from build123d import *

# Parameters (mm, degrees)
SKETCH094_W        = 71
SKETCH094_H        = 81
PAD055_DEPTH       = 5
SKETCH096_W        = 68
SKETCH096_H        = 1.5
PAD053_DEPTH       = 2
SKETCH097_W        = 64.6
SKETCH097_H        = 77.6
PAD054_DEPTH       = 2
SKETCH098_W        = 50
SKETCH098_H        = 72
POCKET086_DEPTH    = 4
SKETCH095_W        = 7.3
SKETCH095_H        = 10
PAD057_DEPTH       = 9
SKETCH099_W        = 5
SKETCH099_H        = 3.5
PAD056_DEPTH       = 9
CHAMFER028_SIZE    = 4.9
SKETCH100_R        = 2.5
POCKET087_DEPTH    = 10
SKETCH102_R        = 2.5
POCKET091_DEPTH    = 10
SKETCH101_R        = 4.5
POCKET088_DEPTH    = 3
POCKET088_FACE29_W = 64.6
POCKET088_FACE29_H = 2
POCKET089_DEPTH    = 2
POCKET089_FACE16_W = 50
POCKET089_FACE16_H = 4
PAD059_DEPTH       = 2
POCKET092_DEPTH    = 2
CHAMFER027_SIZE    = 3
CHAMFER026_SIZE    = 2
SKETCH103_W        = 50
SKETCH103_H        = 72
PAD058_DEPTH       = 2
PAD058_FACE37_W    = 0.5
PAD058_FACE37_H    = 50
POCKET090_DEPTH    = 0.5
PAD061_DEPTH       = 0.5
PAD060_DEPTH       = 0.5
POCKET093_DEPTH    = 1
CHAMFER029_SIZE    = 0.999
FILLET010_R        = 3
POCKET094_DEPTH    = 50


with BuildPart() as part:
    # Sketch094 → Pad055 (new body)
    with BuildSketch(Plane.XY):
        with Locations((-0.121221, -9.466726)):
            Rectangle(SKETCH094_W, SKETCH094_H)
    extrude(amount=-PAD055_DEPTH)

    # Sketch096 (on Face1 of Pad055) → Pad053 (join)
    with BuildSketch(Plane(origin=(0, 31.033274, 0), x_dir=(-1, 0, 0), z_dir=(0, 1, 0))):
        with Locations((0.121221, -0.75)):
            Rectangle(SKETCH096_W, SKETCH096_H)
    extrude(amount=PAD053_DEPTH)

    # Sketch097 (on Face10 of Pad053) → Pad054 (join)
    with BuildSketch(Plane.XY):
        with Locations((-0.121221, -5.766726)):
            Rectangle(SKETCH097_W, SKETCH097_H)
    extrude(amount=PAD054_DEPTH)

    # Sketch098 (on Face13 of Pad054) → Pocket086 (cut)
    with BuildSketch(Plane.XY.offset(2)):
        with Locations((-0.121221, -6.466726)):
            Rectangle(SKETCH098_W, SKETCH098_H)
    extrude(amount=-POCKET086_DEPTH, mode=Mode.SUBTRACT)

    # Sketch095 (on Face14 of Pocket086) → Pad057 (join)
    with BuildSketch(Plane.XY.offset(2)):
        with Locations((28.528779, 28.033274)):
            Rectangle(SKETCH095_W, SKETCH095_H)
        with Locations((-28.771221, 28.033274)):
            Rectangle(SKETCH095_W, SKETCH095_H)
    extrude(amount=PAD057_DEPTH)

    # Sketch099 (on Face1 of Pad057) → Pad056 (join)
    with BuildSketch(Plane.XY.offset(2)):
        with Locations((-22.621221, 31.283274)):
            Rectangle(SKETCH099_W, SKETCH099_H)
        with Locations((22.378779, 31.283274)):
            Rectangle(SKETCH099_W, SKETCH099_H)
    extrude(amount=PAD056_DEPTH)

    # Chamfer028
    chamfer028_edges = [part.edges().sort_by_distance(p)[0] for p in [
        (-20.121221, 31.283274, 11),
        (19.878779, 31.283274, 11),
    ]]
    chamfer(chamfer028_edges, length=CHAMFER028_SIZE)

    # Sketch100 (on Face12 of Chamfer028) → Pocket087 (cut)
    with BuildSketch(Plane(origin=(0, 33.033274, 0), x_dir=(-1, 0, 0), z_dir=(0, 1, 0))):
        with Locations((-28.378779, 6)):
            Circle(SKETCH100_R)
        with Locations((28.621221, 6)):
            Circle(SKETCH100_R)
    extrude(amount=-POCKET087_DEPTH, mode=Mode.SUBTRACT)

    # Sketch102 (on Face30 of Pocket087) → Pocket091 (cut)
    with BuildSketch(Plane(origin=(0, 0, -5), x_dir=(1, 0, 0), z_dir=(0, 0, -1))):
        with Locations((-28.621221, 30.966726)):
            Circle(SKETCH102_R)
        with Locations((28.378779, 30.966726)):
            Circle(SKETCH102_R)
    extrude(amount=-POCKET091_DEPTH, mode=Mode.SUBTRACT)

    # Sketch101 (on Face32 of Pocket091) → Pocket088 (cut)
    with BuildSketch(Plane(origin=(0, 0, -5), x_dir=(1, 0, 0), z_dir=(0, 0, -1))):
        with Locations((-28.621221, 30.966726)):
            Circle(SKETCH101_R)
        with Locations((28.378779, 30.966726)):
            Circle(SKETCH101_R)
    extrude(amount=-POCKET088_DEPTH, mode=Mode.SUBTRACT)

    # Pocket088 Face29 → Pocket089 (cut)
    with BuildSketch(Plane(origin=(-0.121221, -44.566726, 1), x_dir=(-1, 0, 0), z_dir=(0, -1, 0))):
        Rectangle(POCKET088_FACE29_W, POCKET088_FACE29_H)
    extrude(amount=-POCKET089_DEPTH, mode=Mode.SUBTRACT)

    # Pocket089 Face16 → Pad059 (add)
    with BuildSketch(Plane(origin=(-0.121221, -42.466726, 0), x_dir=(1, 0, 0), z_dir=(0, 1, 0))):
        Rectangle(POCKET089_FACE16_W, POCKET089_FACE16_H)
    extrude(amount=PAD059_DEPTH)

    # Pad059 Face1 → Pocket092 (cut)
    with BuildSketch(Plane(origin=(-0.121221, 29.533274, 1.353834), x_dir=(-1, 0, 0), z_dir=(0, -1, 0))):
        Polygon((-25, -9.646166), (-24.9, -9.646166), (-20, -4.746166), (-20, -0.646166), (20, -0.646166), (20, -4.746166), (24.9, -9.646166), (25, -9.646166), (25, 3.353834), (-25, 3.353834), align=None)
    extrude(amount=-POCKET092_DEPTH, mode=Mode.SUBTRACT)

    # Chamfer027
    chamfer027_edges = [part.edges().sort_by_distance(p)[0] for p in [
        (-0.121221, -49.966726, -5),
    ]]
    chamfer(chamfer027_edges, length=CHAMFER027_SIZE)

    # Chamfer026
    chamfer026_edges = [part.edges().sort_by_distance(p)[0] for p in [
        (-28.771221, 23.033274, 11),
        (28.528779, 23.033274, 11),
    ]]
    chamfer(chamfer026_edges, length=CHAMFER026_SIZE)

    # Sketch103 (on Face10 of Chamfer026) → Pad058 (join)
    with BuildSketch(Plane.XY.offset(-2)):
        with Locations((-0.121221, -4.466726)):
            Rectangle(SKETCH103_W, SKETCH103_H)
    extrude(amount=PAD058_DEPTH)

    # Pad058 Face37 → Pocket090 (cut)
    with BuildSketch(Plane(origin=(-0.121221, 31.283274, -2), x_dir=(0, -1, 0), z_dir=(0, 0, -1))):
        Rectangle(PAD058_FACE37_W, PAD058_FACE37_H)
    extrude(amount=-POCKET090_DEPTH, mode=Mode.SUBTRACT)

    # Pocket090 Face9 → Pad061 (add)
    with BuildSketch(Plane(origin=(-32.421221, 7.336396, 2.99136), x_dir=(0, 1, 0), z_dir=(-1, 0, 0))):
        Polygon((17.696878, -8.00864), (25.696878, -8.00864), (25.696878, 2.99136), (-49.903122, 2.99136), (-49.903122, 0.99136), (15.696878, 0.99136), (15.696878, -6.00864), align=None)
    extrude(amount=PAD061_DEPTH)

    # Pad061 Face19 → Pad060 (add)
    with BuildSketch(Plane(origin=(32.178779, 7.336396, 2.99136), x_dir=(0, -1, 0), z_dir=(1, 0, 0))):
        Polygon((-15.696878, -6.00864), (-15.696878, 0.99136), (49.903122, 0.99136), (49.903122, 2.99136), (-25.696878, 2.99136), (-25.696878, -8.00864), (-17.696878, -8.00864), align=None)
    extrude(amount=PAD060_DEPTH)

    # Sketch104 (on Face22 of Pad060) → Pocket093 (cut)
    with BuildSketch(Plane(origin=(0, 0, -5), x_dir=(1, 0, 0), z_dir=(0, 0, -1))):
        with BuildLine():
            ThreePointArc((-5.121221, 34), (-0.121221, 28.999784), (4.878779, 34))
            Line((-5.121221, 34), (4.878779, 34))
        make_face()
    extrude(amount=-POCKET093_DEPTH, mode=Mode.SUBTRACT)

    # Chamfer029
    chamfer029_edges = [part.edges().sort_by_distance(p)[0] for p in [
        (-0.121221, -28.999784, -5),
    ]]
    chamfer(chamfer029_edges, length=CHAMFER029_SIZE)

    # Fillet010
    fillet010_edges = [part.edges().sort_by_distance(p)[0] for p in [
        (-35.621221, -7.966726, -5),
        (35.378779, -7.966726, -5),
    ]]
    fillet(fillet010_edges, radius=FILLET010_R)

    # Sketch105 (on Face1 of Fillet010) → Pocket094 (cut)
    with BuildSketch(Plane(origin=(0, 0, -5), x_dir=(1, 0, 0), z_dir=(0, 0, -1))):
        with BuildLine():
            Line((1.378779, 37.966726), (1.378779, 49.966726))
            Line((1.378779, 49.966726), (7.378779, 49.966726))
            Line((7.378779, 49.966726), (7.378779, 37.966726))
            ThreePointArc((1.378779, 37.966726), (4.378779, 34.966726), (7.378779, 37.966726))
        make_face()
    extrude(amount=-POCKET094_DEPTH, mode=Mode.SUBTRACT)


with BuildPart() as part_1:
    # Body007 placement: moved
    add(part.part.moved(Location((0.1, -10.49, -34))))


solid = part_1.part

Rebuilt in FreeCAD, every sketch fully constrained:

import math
import FreeCAD as App
import Part
import Sketcher
from FreeCAD import Vector
Q = App.Units.Quantity


def edges_at(feature, points):
    """Names of the edges that pass closest to the given points."""
    edges = feature.Shape.Edges
    near = lambda p: min(range(len(edges)), key=lambda i: edges[i].distToShape(Part.Vertex(*p))[0])
    return sorted({f"Edge{near(p) + 1}" for p in points})

doc = App.newDocument("Part")
body = doc.addObject("PartDesign::Body", "Body")

# Sketch on XY plane
sketch1 = body.newObject("Sketcher::SketchObject", "Sketch")
sketch1.AttachmentSupport = (doc.getObject("XY_Plane"), [""])
sketch1.MapMode = "FlatFace"
sketch1.addGeometry([
    Part.LineSegment(Vector(-36, 31, 0), Vector(-36, -50, 0)),
    Part.LineSegment(Vector(-36, -50, 0), Vector(35, -50, 0)),
    Part.LineSegment(Vector(35, -50, 0), Vector(35, 31, 0)),
    Part.LineSegment(Vector(35, 31, 0), Vector(-36, 31, 0)),
], False)
sketch1.addConstraint([
    Sketcher.Constraint("Coincident", 0, 2, 1, 1),
    Sketcher.Constraint("Coincident", 1, 2, 2, 1),
    Sketcher.Constraint("Coincident", 2, 2, 3, 1),
    Sketcher.Constraint("Coincident", 3, 2, 0, 1),
    Sketcher.Constraint("Vertical", 0),
    Sketcher.Constraint("Horizontal", 1),
    Sketcher.Constraint("Vertical", 2),
    Sketcher.Constraint("Horizontal", 3),
    Sketcher.Constraint("DistanceX", 1, 1, 1, 2, Q("71 mm")),
    Sketcher.Constraint("DistanceY", 0, 2, 0, 1, Q("81 mm")),
    Sketcher.Constraint("DistanceX", 0, 2, -1, 1, Q("35.621221 mm")),
    Sketcher.Constraint("DistanceY", 0, 2, -1, 1, Q("49.966726 mm")),
])
pad1 = body.newObject("PartDesign::Pad", "Pad")
pad1.Profile = sketch1
pad1.Length = 5
pad1.Reversed = True

# Sketch on XZ plane
sketch2 = body.newObject("Sketcher::SketchObject", "Sketch001")
sketch2.AttachmentSupport = (doc.getObject("XZ_Plane"), [""])
sketch2.MapMode = "FlatFace"
sketch2.AttachmentOffset = App.Placement(Vector(0, 0, -31.033274), App.Rotation())
sketch2.addGeometry([
    Part.LineSegment(Vector(33.9, 0, 0), Vector(33.9, -1.5, 0)),
    Part.LineSegment(Vector(33.9, -1.5, 0), Vector(-34.1, -1.5, 0)),
    Part.LineSegment(Vector(-34.1, -1.5, 0), Vector(-34.1, 0, 0)),
    Part.LineSegment(Vector(-34.1, 0, 0), Vector(33.9, 0, 0)),
], False)
sketch2.addConstraint([
    Sketcher.Constraint("Coincident", 0, 2, 1, 1),
    Sketcher.Constraint("Coincident", 1, 2, 2, 1),
    Sketcher.Constraint("Coincident", 2, 2, 3, 1),
    Sketcher.Constraint("Coincident", 3, 2, 0, 1),
    Sketcher.Constraint("Vertical", 0),
    Sketcher.Constraint("Horizontal", 1),
    Sketcher.Constraint("Vertical", 2),
    Sketcher.Constraint("Horizontal", 3),
    Sketcher.Constraint("PointOnObject", 2, 2, -1),
    Sketcher.Constraint("DistanceX", 1, 2, 1, 1, Q("68 mm")),
    Sketcher.Constraint("DistanceY", 0, 2, 0, 1, Q("1.5 mm")),
    Sketcher.Constraint("DistanceX", -1, 1, 0, 2, Q("33.878779 mm")),
])
pad2 = body.newObject("PartDesign::Pad", "Pad001")
pad2.Profile = sketch2
pad2.Length = 2
pad2.Reversed = True

# Sketch on XY plane
sketch3 = body.newObject("Sketcher::SketchObject", "Sketch002")
sketch3.AttachmentSupport = (doc.getObject("XY_Plane"), [""])
sketch3.MapMode = "FlatFace"
sketch3.addGeometry([
    Part.LineSegment(Vector(-32, 33, 0), Vector(-32, -45, 0)),
    Part.LineSegment(Vector(-32, -45, 0), Vector(32, -45, 0)),
    Part.LineSegment(Vector(32, -45, 0), Vector(32, 33, 0)),
    Part.LineSegment(Vector(32, 33, 0), Vector(-32, 33, 0)),
], False)
sketch3.addConstraint([
    Sketcher.Constraint("Coincident", 0, 2, 1, 1),
    Sketcher.Constraint("Coincident", 1, 2, 2, 1),
    Sketcher.Constraint("Coincident", 2, 2, 3, 1),
    Sketcher.Constraint("Coincident", 3, 2, 0, 1),
    Sketcher.Constraint("Vertical", 0),
    Sketcher.Constraint("Horizontal", 1),
    Sketcher.Constraint("Vertical", 2),
    Sketcher.Constraint("Horizontal", 3),
    Sketcher.Constraint("DistanceX", 1, 1, 1, 2, Q("64.6 mm")),
    Sketcher.Constraint("DistanceY", 0, 2, 0, 1, Q("77.6 mm")),
    Sketcher.Constraint("DistanceX", 0, 2, -1, 1, Q("32.421221 mm")),
    Sketcher.Constraint("DistanceY", 0, 2, -1, 1, Q("44.566726 mm")),
])
pad3 = body.newObject("PartDesign::Pad", "Pad002")
pad3.Profile = sketch3
pad3.Length = 2

# Sketch on XY plane
sketch4 = body.newObject("Sketcher::SketchObject", "Sketch003")
sketch4.AttachmentSupport = (doc.getObject("XY_Plane"), [""])
sketch4.MapMode = "FlatFace"
sketch4.AttachmentOffset = App.Placement(Vector(0, 0, 2), App.Rotation())
sketch4.addGeometry([
    Part.LineSegment(Vector(-25, 30, 0), Vector(-25, -42, 0)),
    Part.LineSegment(Vector(-25, -42, 0), Vector(25, -42, 0)),
    Part.LineSegment(Vector(25, -42, 0), Vector(25, 30, 0)),
    Part.LineSegment(Vector(25, 30, 0), Vector(-25, 30, 0)),
], False)
sketch4.addConstraint([
    Sketcher.Constraint("Coincident", 0, 2, 1, 1),
    Sketcher.Constraint("Coincident", 1, 2, 2, 1),
    Sketcher.Constraint("Coincident", 2, 2, 3, 1),
    Sketcher.Constraint("Coincident", 3, 2, 0, 1),
    Sketcher.Constraint("Vertical", 0),
    Sketcher.Constraint("Horizontal", 1),
    Sketcher.Constraint("Vertical", 2),
    Sketcher.Constraint("Horizontal", 3),
    Sketcher.Constraint("DistanceX", 1, 1, 1, 2, Q("50 mm")),
    Sketcher.Constraint("DistanceY", 0, 2, 0, 1, Q("72 mm")),
    Sketcher.Constraint("DistanceX", 0, 2, -1, 1, Q("25.121221 mm")),
    Sketcher.Constraint("DistanceY", 0, 2, -1, 1, Q("42.466726 mm")),
])
pocket1 = body.newObject("PartDesign::Pocket", "Pocket")
pocket1.Profile = sketch4
pocket1.Length = 4

# Sketch on XY plane
sketch5 = body.newObject("Sketcher::SketchObject", "Sketch004")
sketch5.AttachmentSupport = (doc.getObject("XY_Plane"), [""])
sketch5.MapMode = "FlatFace"
sketch5.AttachmentOffset = App.Placement(Vector(0, 0, 2), App.Rotation())
sketch5.addGeometry([
    Part.LineSegment(Vector(25, 33, 0), Vector(25, 23, 0)),  # 0
    Part.LineSegment(Vector(25, 23, 0), Vector(32, 23, 0)),  # 1
    Part.LineSegment(Vector(32, 23, 0), Vector(32, 33, 0)),  # 2
    Part.LineSegment(Vector(32, 33, 0), Vector(25, 33, 0)),  # 3
    Part.LineSegment(Vector(-32, 33, 0), Vector(-32, 23, 0)),  # 4
    Part.LineSegment(Vector(-32, 23, 0), Vector(-25, 23, 0)),  # 5
    Part.LineSegment(Vector(-25, 23, 0), Vector(-25, 33, 0)),  # 6
    Part.LineSegment(Vector(-25, 33, 0), Vector(-32, 33, 0)),  # 7
], False)
sketch5.addConstraint([
    Sketcher.Constraint("Coincident", 0, 2, 1, 1),
    Sketcher.Constraint("Coincident", 1, 2, 2, 1),
    Sketcher.Constraint("Coincident", 2, 2, 3, 1),
    Sketcher.Constraint("Coincident", 3, 2, 0, 1),
    Sketcher.Constraint("Coincident", 4, 2, 5, 1),
    Sketcher.Constraint("Coincident", 5, 2, 6, 1),
    Sketcher.Constraint("Coincident", 6, 2, 7, 1),
    Sketcher.Constraint("Coincident", 7, 2, 4, 1),
    Sketcher.Constraint("Vertical", 0),
    Sketcher.Constraint("Horizontal", 1),
    Sketcher.Constraint("Vertical", 2),
    Sketcher.Constraint("Horizontal", 3),
    Sketcher.Constraint("Vertical", 4),
    Sketcher.Constraint("Horizontal", 5),
    Sketcher.Constraint("Vertical", 6),
    Sketcher.Constraint("Horizontal", 7),
    Sketcher.Constraint("Horizontal", 1, 2, 4, 2),
    Sketcher.Constraint("Horizontal", 3, 2, 6, 2),
    Sketcher.Constraint("Equal", 3, 5),
    Sketcher.Constraint("DistanceY", 0, 2, 0, 1, Q("10 mm")),
    Sketcher.Constraint("DistanceX", 1, 1, 1, 2, Q("7.3 mm")),
    Sketcher.Constraint("DistanceX", 5, 2, 0, 2, Q("50 mm")),
    Sketcher.Constraint("DistanceX", -1, 1, 0, 2, Q("24.878779 mm")),
    Sketcher.Constraint("DistanceY", -1, 1, 0, 2, Q("23.033274 mm")),
])
pad4 = body.newObject("PartDesign::Pad", "Pad003")
pad4.Profile = sketch5
pad4.Length = 9

# Sketch on XY plane
sketch6 = body.newObject("Sketcher::SketchObject", "Sketch005")
sketch6.AttachmentSupport = (doc.getObject("XY_Plane"), [""])
sketch6.MapMode = "FlatFace"
sketch6.AttachmentOffset = App.Placement(Vector(0, 0, 2), App.Rotation())
sketch6.addGeometry([
    Part.LineSegment(Vector(-25.1, 33, 0), Vector(-25.1, 29.5, 0)),  # 0
    Part.LineSegment(Vector(-25.1, 29.5, 0), Vector(-20.1, 29.5, 0)),  # 1
    Part.LineSegment(Vector(-20.1, 29.5, 0), Vector(-20.1, 33, 0)),  # 2
    Part.LineSegment(Vector(-20.1, 33, 0), Vector(-25.1, 33, 0)),  # 3
    Part.LineSegment(Vector(19.9, 33, 0), Vector(19.9, 29.5, 0)),  # 4
    Part.LineSegment(Vector(19.9, 29.5, 0), Vector(24.9, 29.5, 0)),  # 5
    Part.LineSegment(Vector(24.9, 29.5, 0), Vector(24.9, 33, 0)),  # 6
    Part.LineSegment(Vector(24.9, 33, 0), Vector(19.9, 33, 0)),  # 7
], False)
sketch6.addConstraint([
    Sketcher.Constraint("Coincident", 0, 2, 1, 1),
    Sketcher.Constraint("Coincident", 1, 2, 2, 1),
    Sketcher.Constraint("Coincident", 2, 2, 3, 1),
    Sketcher.Constraint("Coincident", 3, 2, 0, 1),
    Sketcher.Constraint("Coincident", 4, 2, 5, 1),
    Sketcher.Constraint("Coincident", 5, 2, 6, 1),
    Sketcher.Constraint("Coincident", 6, 2, 7, 1),
    Sketcher.Constraint("Coincident", 7, 2, 4, 1),
    Sketcher.Constraint("Vertical", 0),
    Sketcher.Constraint("Horizontal", 1),
    Sketcher.Constraint("Vertical", 2),
    Sketcher.Constraint("Horizontal", 3),
    Sketcher.Constraint("Vertical", 4),
    Sketcher.Constraint("Horizontal", 5),
    Sketcher.Constraint("Vertical", 6),
    Sketcher.Constraint("Horizontal", 7),
    Sketcher.Constraint("Horizontal", 1, 2, 4, 2),
    Sketcher.Constraint("Horizontal", 3, 2, 6, 2),
    Sketcher.Constraint("Equal", 3, 5),
    Sketcher.Constraint("DistanceX", 1, 1, 1, 2, Q("5 mm")),
    Sketcher.Constraint("DistanceY", 0, 2, 0, 1, Q("3.5 mm")),
    Sketcher.Constraint("DistanceX", 1, 2, 4, 2, Q("40 mm")),
    Sketcher.Constraint("DistanceX", 0, 2, -1, 1, Q("25.121221 mm")),
    Sketcher.Constraint("DistanceY", -1, 1, 0, 2, Q("29.533274 mm")),
])
pad5 = body.newObject("PartDesign::Pad", "Pad004")
pad5.Profile = sketch6
pad5.Length = 9
doc.recompute()

chamfer = body.newObject("PartDesign::Chamfer", "Chamfer")
chamfer.Base = (pad5, edges_at(pad5, [(-20.121, 31.283, 11), (19.879, 31.283, 11)]))
chamfer.Size = 4.9

# Sketch on XZ plane
sketch7 = body.newObject("Sketcher::SketchObject", "Sketch006")
sketch7.AttachmentSupport = (doc.getObject("XZ_Plane"), [""])
sketch7.MapMode = "FlatFace"
sketch7.AttachmentOffset = App.Placement(Vector(0, 0, -33.033274), App.Rotation())
sketch7.addGeometry([
    Part.Circle(Vector(28.4, 6, 0), Vector(0, 0, 1), 2.5),
    Part.Circle(Vector(-28.6, 6, 0), Vector(0, 0, 1), 2.5),
], False)
sketch7.addConstraint([
    Sketcher.Constraint("Equal", 0, 1),
    Sketcher.Constraint("Horizontal", 0, 3, 1, 3),
    Sketcher.Constraint("Diameter", 0, Q("5 mm")),
    Sketcher.Constraint("DistanceY", -1, 1, 0, 3, Q("6 mm")),
    Sketcher.Constraint("DistanceX", 1, 3, 0, 3, Q("57 mm")),
    Sketcher.Constraint("DistanceX", -1, 1, 0, 3, Q("28.378779 mm")),
])
pocket2 = body.newObject("PartDesign::Pocket", "Pocket001")
pocket2.Profile = sketch7
pocket2.Length = 10
pocket2.Reversed = True

# Sketch on XY plane
sketch8 = body.newObject("Sketcher::SketchObject", "Sketch007")
sketch8.AttachmentSupport = (doc.getObject("XY_Plane"), [""])
sketch8.MapMode = "FlatFace"
sketch8.AttachmentOffset = App.Placement(Vector(0, 0, -5), App.Rotation())
sketch8.addGeometry([
    Part.Circle(Vector(-28.6, -31, 0), Vector(0, 0, 1), 2.5),
    Part.Circle(Vector(28.4, -31, 0), Vector(0, 0, 1), 2.5),
], False)
sketch8.addConstraint([
    Sketcher.Constraint("Equal", 0, 1),
    Sketcher.Constraint("Horizontal", 0, 3, 1, 3),
    Sketcher.Constraint("Diameter", 0, Q("5 mm")),
    Sketcher.Constraint("DistanceX", 0, 3, 1, 3, Q("57 mm")),
    Sketcher.Constraint("DistanceX", 0, 3, -1, 1, Q("28.621221 mm")),
    Sketcher.Constraint("DistanceY", 0, 3, -1, 1, Q("30.966726 mm")),
])
pocket3 = body.newObject("PartDesign::Pocket", "Pocket002")
pocket3.Profile = sketch8
pocket3.Length = 10
pocket3.Reversed = True

# Sketch on XY plane
sketch9 = body.newObject("Sketcher::SketchObject", "Sketch008")
sketch9.AttachmentSupport = (doc.getObject("XY_Plane"), [""])
sketch9.MapMode = "FlatFace"
sketch9.AttachmentOffset = App.Placement(Vector(0, 0, -5), App.Rotation())
sketch9.addGeometry([
    Part.Circle(Vector(-28.6, -31, 0), Vector(0, 0, 1), 4.5),
    Part.Circle(Vector(28.4, -31, 0), Vector(0, 0, 1), 4.5),
], False)
sketch9.addConstraint([
    Sketcher.Constraint("Equal", 0, 1),
    Sketcher.Constraint("Horizontal", 0, 3, 1, 3),
    Sketcher.Constraint("Diameter", 0, Q("9 mm")),
    Sketcher.Constraint("DistanceX", 0, 3, 1, 3, Q("57 mm")),
    Sketcher.Constraint("DistanceX", 0, 3, -1, 1, Q("28.621221 mm")),
    Sketcher.Constraint("DistanceY", 0, 3, -1, 1, Q("30.966726 mm")),
])
pocket4 = body.newObject("PartDesign::Pocket", "Pocket003")
pocket4.Profile = sketch9
pocket4.Length = 3
pocket4.Reversed = True

# Sketch on XZ plane
sketch10 = body.newObject("Sketcher::SketchObject", "Sketch009")
sketch10.AttachmentSupport = (doc.getObject("XZ_Plane"), [""])
sketch10.MapMode = "FlatFace"
sketch10.AttachmentOffset = App.Placement(Vector(0, 0, 44.566726), App.Rotation())
sketch10.addGeometry([
    Part.LineSegment(Vector(32.2, 0, 0), Vector(32.2, 2, 0)),
    Part.LineSegment(Vector(32.2, 2, 0), Vector(-32.4, 2, 0)),
    Part.LineSegment(Vector(-32.4, 2, 0), Vector(-32.4, 0, 0)),
    Part.LineSegment(Vector(-32.4, 0, 0), Vector(32.2, 0, 0)),
], False)
sketch10.addConstraint([
    Sketcher.Constraint("Coincident", 0, 2, 1, 1),
    Sketcher.Constraint("Coincident", 1, 2, 2, 1),
    Sketcher.Constraint("Coincident", 2, 2, 3, 1),
    Sketcher.Constraint("Coincident", 3, 2, 0, 1),
    Sketcher.Constraint("Vertical", 0),
    Sketcher.Constraint("Horizontal", 1),
    Sketcher.Constraint("Vertical", 2),
    Sketcher.Constraint("Horizontal", 3),
    Sketcher.Constraint("PointOnObject", 2, 2, -1),
    Sketcher.Constraint("DistanceY", 0, 1, 0, 2, Q("2 mm")),
    Sketcher.Constraint("DistanceX", 1, 2, 1, 1, Q("64.6 mm")),
    Sketcher.Constraint("DistanceX", -1, 1, 0, 2, Q("32.178779 mm")),
])
pocket5 = body.newObject("PartDesign::Pocket", "Pocket004")
pocket5.Profile = sketch10
pocket5.Length = 2

# Sketch on XZ plane
sketch11 = body.newObject("Sketcher::SketchObject", "Sketch010")
sketch11.AttachmentSupport = (doc.getObject("XZ_Plane"), [""])
sketch11.MapMode = "FlatFace"
sketch11.AttachmentOffset = App.Placement(Vector(0, 0, 42.466726), App.Rotation())
sketch11.addGeometry([
    Part.LineSegment(Vector(-25.1, -2, 0), Vector(-25.1, 2, 0)),
    Part.LineSegment(Vector(-25.1, 2, 0), Vector(24.9, 2, 0)),
    Part.LineSegment(Vector(24.9, 2, 0), Vector(24.9, -2, 0)),
    Part.LineSegment(Vector(24.9, -2, 0), Vector(-25.1, -2, 0)),
], False)
sketch11.addConstraint([
    Sketcher.Constraint("Coincident", 0, 2, 1, 1),
    Sketcher.Constraint("Coincident", 1, 2, 2, 1),
    Sketcher.Constraint("Coincident", 2, 2, 3, 1),
    Sketcher.Constraint("Coincident", 3, 2, 0, 1),
    Sketcher.Constraint("Vertical", 0),
    Sketcher.Constraint("Horizontal", 1),
    Sketcher.Constraint("Vertical", 2),
    Sketcher.Constraint("Horizontal", 3),
    Sketcher.Constraint("DistanceX", 1, 1, 1, 2, Q("50 mm")),
    Sketcher.Constraint("DistanceY", 0, 1, 0, 2, Q("4 mm")),
    Sketcher.Constraint("DistanceY", -1, 1, 0, 2, Q("2 mm")),
    Sketcher.Constraint("DistanceX", 0, 2, -1, 1, Q("25.121221 mm")),
])
pad6 = body.newObject("PartDesign::Pad", "Pad005")
pad6.Profile = sketch11
pad6.Length = 2
pad6.Reversed = True

# Sketch on XZ plane
sketch12 = body.newObject("Sketcher::SketchObject", "Sketch011")
sketch12.AttachmentSupport = (doc.getObject("XZ_Plane"), [""])
sketch12.MapMode = "FlatFace"
sketch12.AttachmentOffset = App.Placement(Vector(0, 0, -29.533274), App.Rotation())
sketch12.addGeometry([
    Part.LineSegment(Vector(24.88, 11, 0), Vector(24.78, 11, 0)),  # 0
    Part.LineSegment(Vector(24.78, 11, 0), Vector(19.88, 6.1, 0)),  # 1
    Part.LineSegment(Vector(19.88, 6.1, 0), Vector(19.88, 2, 0)),  # 2
    Part.LineSegment(Vector(19.88, 2, 0), Vector(-20.12, 2, 0)),  # 3
    Part.LineSegment(Vector(-20.12, 2, 0), Vector(-20.12, 6.1, 0)),  # 4
    Part.LineSegment(Vector(-20.12, 6.1, 0), Vector(-25.02, 11, 0)),  # 5
    Part.LineSegment(Vector(-25.02, 11, 0), Vector(-25.12, 11, 0)),  # 6
    Part.LineSegment(Vector(-25.12, 11, 0), Vector(-25.12, -2, 0)),  # 7
    Part.LineSegment(Vector(-25.12, -2, 0), Vector(24.88, -2, 0)),  # 8
    Part.LineSegment(Vector(24.88, -2, 0), Vector(24.88, 11, 0)),  # 9
], False)
sketch12.addConstraint([
    Sketcher.Constraint("Coincident", 0, 2, 1, 1),
    Sketcher.Constraint("Coincident", 1, 2, 2, 1),
    Sketcher.Constraint("Coincident", 2, 2, 3, 1),
    Sketcher.Constraint("Coincident", 3, 2, 4, 1),
    Sketcher.Constraint("Coincident", 4, 2, 5, 1),
    Sketcher.Constraint("Coincident", 5, 2, 6, 1),
    Sketcher.Constraint("Coincident", 6, 2, 7, 1),
    Sketcher.Constraint("Coincident", 7, 2, 8, 1),
    Sketcher.Constraint("Coincident", 8, 2, 9, 1),
    Sketcher.Constraint("Coincident", 9, 2, 0, 1),
    Sketcher.Constraint("Horizontal", 0),
    Sketcher.Constraint("Vertical", 2),
    Sketcher.Constraint("Horizontal", 3),
    Sketcher.Constraint("Vertical", 4),
    Sketcher.Constraint("Horizontal", 6),
    Sketcher.Constraint("Vertical", 7),
    Sketcher.Constraint("Horizontal", 8),
    Sketcher.Constraint("Vertical", 9),
    Sketcher.Constraint("Perpendicular", 1, 5),
    Sketcher.Constraint("Horizontal", 1, 2, 4, 2),
    Sketcher.Constraint("Horizontal", 0, 2, 5, 2),
    Sketcher.Constraint("Equal", 0, 6),
    Sketcher.Constraint("Equal", 1, 5),
    Sketcher.Constraint("DistanceX", 3, 2, 3, 1, Q("40 mm")),
    Sketcher.Constraint("DistanceX", 8, 1, 8, 2, Q("50 mm")),
    Sketcher.Constraint("DistanceY", 7, 2, 7, 1, Q("13 mm")),
    Sketcher.Constraint("DistanceX", 0, 2, 0, 1, Q("0.1 mm")),
    Sketcher.Constraint("DistanceY", 2, 2, 2, 1, Q("4.1 mm")),
    Sketcher.Constraint("DistanceY", -1, 1, 0, 2, Q("11 mm")),
    Sketcher.Constraint("DistanceX", -1, 1, 0, 2, Q("24.778779 mm")),
])
pocket6 = body.newObject("PartDesign::Pocket", "Pocket005")
pocket6.Profile = sketch12
pocket6.Length = 2
doc.recompute()

chamfer2 = body.newObject("PartDesign::Chamfer", "Chamfer001")
chamfer2.Base = (pocket6, edges_at(pocket6, [(-0.121, -49.967, -5)]))
chamfer2.Size = 3
doc.recompute()

chamfer3 = body.newObject("PartDesign::Chamfer", "Chamfer002")
chamfer3.Base = (chamfer2, edges_at(chamfer2, [(-28.771, 23.033, 11), (28.529, 23.033, 11)]))
chamfer3.Size = 2

# Sketch on XY plane
sketch13 = body.newObject("Sketcher::SketchObject", "Sketch012")
sketch13.AttachmentSupport = (doc.getObject("XY_Plane"), [""])
sketch13.MapMode = "FlatFace"
sketch13.AttachmentOffset = App.Placement(Vector(0, 0, -2), App.Rotation())
sketch13.addGeometry([
    Part.LineSegment(Vector(-25, 32, 0), Vector(-25, -40, 0)),
    Part.LineSegment(Vector(-25, -40, 0), Vector(25, -40, 0)),
    Part.LineSegment(Vector(25, -40, 0), Vector(25, 32, 0)),
    Part.LineSegment(Vector(25, 32, 0), Vector(-25, 32, 0)),
], False)
sketch13.addConstraint([
    Sketcher.Constraint("Coincident", 0, 2, 1, 1),
    Sketcher.Constraint("Coincident", 1, 2, 2, 1),
    Sketcher.Constraint("Coincident", 2, 2, 3, 1),
    Sketcher.Constraint("Coincident", 3, 2, 0, 1),
    Sketcher.Constraint("Vertical", 0),
    Sketcher.Constraint("Horizontal", 1),
    Sketcher.Constraint("Vertical", 2),
    Sketcher.Constraint("Horizontal", 3),
    Sketcher.Constraint("DistanceX", 1, 1, 1, 2, Q("50 mm")),
    Sketcher.Constraint("DistanceY", 0, 2, 0, 1, Q("72 mm")),
    Sketcher.Constraint("DistanceX", 0, 2, -1, 1, Q("25.121221 mm")),
    Sketcher.Constraint("DistanceY", 0, 2, -1, 1, Q("40.466726 mm")),
])
pad7 = body.newObject("PartDesign::Pad", "Pad006")
pad7.Profile = sketch13
pad7.Length = 2

# Sketch on XY plane
sketch14 = body.newObject("Sketcher::SketchObject", "Sketch013")
sketch14.AttachmentSupport = (doc.getObject("XY_Plane"), [""])
sketch14.MapMode = "FlatFace"
sketch14.AttachmentOffset = App.Placement(Vector(0, 0, -2), App.Rotation())
sketch14.addGeometry([
    Part.LineSegment(Vector(-25.1, 31.5, 0), Vector(24.9, 31.5, 0)),
    Part.LineSegment(Vector(24.9, 31.5, 0), Vector(24.9, 31, 0)),
    Part.LineSegment(Vector(24.9, 31, 0), Vector(-25.1, 31, 0)),
    Part.LineSegment(Vector(-25.1, 31, 0), Vector(-25.1, 31.5, 0)),
], False)
sketch14.addConstraint([
    Sketcher.Constraint("Coincident", 0, 2, 1, 1),
    Sketcher.Constraint("Coincident", 1, 2, 2, 1),
    Sketcher.Constraint("Coincident", 2, 2, 3, 1),
    Sketcher.Constraint("Coincident", 3, 2, 0, 1),
    Sketcher.Constraint("Horizontal", 0),
    Sketcher.Constraint("Vertical", 1),
    Sketcher.Constraint("Horizontal", 2),
    Sketcher.Constraint("Vertical", 3),
    Sketcher.Constraint("DistanceX", 0, 1, 0, 2, Q("50 mm")),
    Sketcher.Constraint("DistanceY", 1, 2, 1, 1, Q("0.5 mm")),
    Sketcher.Constraint("DistanceX", -1, 1, 0, 2, Q("24.878779 mm")),
    Sketcher.Constraint("DistanceY", -1, 1, 0, 2, Q("31.533274 mm")),
])
pocket7 = body.newObject("PartDesign::Pocket", "Pocket006")
pocket7.Profile = sketch14
pocket7.Length = 0.5
pocket7.Reversed = True

# Sketch on YZ plane
sketch15 = body.newObject("Sketcher::SketchObject", "Sketch014")
sketch15.AttachmentSupport = (doc.getObject("YZ_Plane"), [""])
sketch15.MapMode = "FlatFace"
sketch15.AttachmentOffset = App.Placement(Vector(0, 0, -32.421221), App.Rotation())
sketch15.addGeometry([
    Part.LineSegment(Vector(25, 11, 0), Vector(33, 11, 0)),  # 0
    Part.LineSegment(Vector(33, 11, 0), Vector(33, 0, 0)),  # 1
    Part.LineSegment(Vector(33, 0, 0), Vector(-42.6, 0, 0)),  # 2
    Part.LineSegment(Vector(-42.6, 0, 0), Vector(-42.6, 2, 0)),  # 3
    Part.LineSegment(Vector(-42.6, 2, 0), Vector(23, 2, 0)),  # 4
    Part.LineSegment(Vector(23, 2, 0), Vector(23, 9, 0)),  # 5
    Part.LineSegment(Vector(23, 9, 0), Vector(25, 11, 0)),  # 6
], False)
sketch15.addConstraint([
    Sketcher.Constraint("Coincident", 0, 2, 1, 1),
    Sketcher.Constraint("Coincident", 1, 2, 2, 1),
    Sketcher.Constraint("Coincident", 2, 2, 3, 1),
    Sketcher.Constraint("Coincident", 3, 2, 4, 1),
    Sketcher.Constraint("Coincident", 4, 2, 5, 1),
    Sketcher.Constraint("Coincident", 5, 2, 6, 1),
    Sketcher.Constraint("Coincident", 6, 2, 0, 1),
    Sketcher.Constraint("Horizontal", 0),
    Sketcher.Constraint("Vertical", 1),
    Sketcher.Constraint("Horizontal", 2),
    Sketcher.Constraint("Vertical", 3),
    Sketcher.Constraint("Horizontal", 4),
    Sketcher.Constraint("Vertical", 5),
    Sketcher.Constraint("PointOnObject", 1, 2, -1),
    Sketcher.Constraint("DistanceX", 0, 1, 0, 2, Q("8 mm")),
    Sketcher.Constraint("DistanceY", 1, 2, 1, 1, Q("11 mm")),
    Sketcher.Constraint("DistanceY", 3, 1, 3, 2, Q("2 mm")),
    Sketcher.Constraint("DistanceY", 5, 1, 5, 2, Q("7 mm")),
    Sketcher.Constraint("Angle", 6, Q("45 deg")),
    Sketcher.Constraint("DistanceX", 2, 2, 2, 1, Q("75.6 mm")),
    Sketcher.Constraint("DistanceX", -1, 1, 0, 2, Q("33.033274 mm")),
])
pad8 = body.newObject("PartDesign::Pad", "Pad007")
pad8.Profile = sketch15
pad8.Length = 0.5
pad8.Reversed = True

# Sketch on YZ plane
sketch16 = body.newObject("Sketcher::SketchObject", "Sketch015")
sketch16.AttachmentSupport = (doc.getObject("YZ_Plane"), [""])
sketch16.MapMode = "FlatFace"
sketch16.AttachmentOffset = App.Placement(Vector(0, 0, 32.178779), App.Rotation())
sketch16.addGeometry([
    Part.LineSegment(Vector(23, 9, 0), Vector(23, 2, 0)),  # 0
    Part.LineSegment(Vector(23, 2, 0), Vector(-42.6, 2, 0)),  # 1
    Part.LineSegment(Vector(-42.6, 2, 0), Vector(-42.6, 0, 0)),  # 2
    Part.LineSegment(Vector(-42.6, 0, 0), Vector(33, 0, 0)),  # 3
    Part.LineSegment(Vector(33, 0, 0), Vector(33, 11, 0)),  # 4
    Part.LineSegment(Vector(33, 11, 0), Vector(25, 11, 0)),  # 5
    Part.LineSegment(Vector(25, 11, 0), Vector(23, 9, 0)),  # 6
], False)
sketch16.addConstraint([
    Sketcher.Constraint("Coincident", 0, 2, 1, 1),
    Sketcher.Constraint("Coincident", 1, 2, 2, 1),
    Sketcher.Constraint("Coincident", 2, 2, 3, 1),
    Sketcher.Constraint("Coincident", 3, 2, 4, 1),
    Sketcher.Constraint("Coincident", 4, 2, 5, 1),
    Sketcher.Constraint("Coincident", 5, 2, 6, 1),
    Sketcher.Constraint("Coincident", 6, 2, 0, 1),
    Sketcher.Constraint("Vertical", 0),
    Sketcher.Constraint("Horizontal", 1),
    Sketcher.Constraint("Vertical", 2),
    Sketcher.Constraint("Horizontal", 3),
    Sketcher.Constraint("Vertical", 4),
    Sketcher.Constraint("Horizontal", 5),
    Sketcher.Constraint("PointOnObject", 2, 2, -1),
    Sketcher.Constraint("DistanceX", 5, 2, 5, 1, Q("8 mm")),
    Sketcher.Constraint("DistanceY", 0, 2, 0, 1, Q("7 mm")),
    Sketcher.Constraint("DistanceY", 2, 2, 2, 1, Q("2 mm")),
    Sketcher.Constraint("DistanceY", 4, 1, 4, 2, Q("11 mm")),
    Sketcher.Constraint("Angle", 6, Q("-135 deg")),
    Sketcher.Constraint("DistanceX", 1, 2, 1, 1, Q("65.6 mm")),
    Sketcher.Constraint("DistanceX", -1, 1, 0, 2, Q("23.033274 mm")),
])
pad9 = body.newObject("PartDesign::Pad", "Pad008")
pad9.Profile = sketch16
pad9.Length = 0.5

# Sketch on XY plane
sketch17 = body.newObject("Sketcher::SketchObject", "Sketch016")
sketch17.AttachmentSupport = (doc.getObject("XY_Plane"), [""])
sketch17.MapMode = "FlatFace"
sketch17.AttachmentOffset = App.Placement(Vector(0, 0, -5), App.Rotation())
sketch17.addGeometry([
    Part.ArcOfCircle(Part.Circle(Vector(0, -34, 0), Vector(0, 0, 1), 5), math.radians(0), math.radians(180)),
    Part.LineSegment(Vector(5, -34, 0), Vector(-5, -34, 0)),
], False)
sketch17.addConstraint([
    Sketcher.Constraint("Coincident", 0, 1, 1, 1),
    Sketcher.Constraint("Coincident", 1, 2, 0, 2),
    Sketcher.Constraint("Horizontal", 1),
    Sketcher.Constraint("Radius", 0, Q("5 mm")),
    Sketcher.Constraint("DistanceY", 0, 1, -1, 1, Q("34 mm")),
    Sketcher.Constraint("DistanceX", 0, 3, -1, 1, Q("0.121221 mm")),
    Sketcher.Constraint("DistanceY", 0, 3, -1, 1, Q("33.999784 mm")),
])
pocket8 = body.newObject("PartDesign::Pocket", "Pocket007")
pocket8.Profile = sketch17
pocket8.Length = 1
pocket8.Reversed = True
doc.recompute()

chamfer4 = body.newObject("PartDesign::Chamfer", "Chamfer003")
chamfer4.Base = (pocket8, edges_at(pocket8, [(-0.121, -29, -5)]))
chamfer4.Size = 0.999
doc.recompute()

fillet = body.newObject("PartDesign::Fillet", "Fillet")
fillet.Base = (chamfer4, edges_at(chamfer4, [(-35.621, -7.967, -5), (35.379, -7.967, -5)]))
fillet.Radius = 3

# Sketch on XY plane
sketch18 = body.newObject("Sketcher::SketchObject", "Sketch017")
sketch18.AttachmentSupport = (doc.getObject("XY_Plane"), [""])
sketch18.MapMode = "FlatFace"
sketch18.AttachmentOffset = App.Placement(Vector(0, 0, -5), App.Rotation())
sketch18.addGeometry([
    Part.LineSegment(Vector(1.4, -50, 0), Vector(1.4, -38, 0)),
    Part.ArcOfCircle(Part.Circle(Vector(4.4, -38, 0), Vector(0, 0, 1), 3), math.radians(0), math.radians(180)),
    Part.LineSegment(Vector(7.4, -38, 0), Vector(7.4, -50, 0)),
    Part.LineSegment(Vector(7.4, -50, 0), Vector(1.4, -50, 0)),
], False)
sketch18.addConstraint([
    Sketcher.Constraint("Tangent", 0, 2, 1, 2),
    Sketcher.Constraint("Tangent", 1, 1, 2, 1),
    Sketcher.Constraint("Coincident", 2, 2, 3, 1),
    Sketcher.Constraint("Coincident", 3, 2, 0, 1),
    Sketcher.Constraint("Vertical", 0),
    Sketcher.Constraint("Vertical", 2),
    Sketcher.Constraint("Horizontal", 3),
    Sketcher.Constraint("Radius", 1, Q("3 mm")),
    Sketcher.Constraint("DistanceY", 0, 1, 0, 2, Q("12 mm")),
    Sketcher.Constraint("DistanceX", -1, 1, 1, 3, Q("4.378779 mm")),
    Sketcher.Constraint("DistanceY", 1, 3, -1, 1, Q("37.966726 mm")),
])
pocket9 = body.newObject("PartDesign::Pocket", "Pocket008")
pocket9.Profile = sketch18
pocket9.Length = 50
pocket9.Reversed = True
body2 = doc.addObject("PartDesign::Body", "Body001")
doc.recompute()

body.Placement = App.Placement(Vector(0.1, -10.49, -34), App.Rotation(Vector(0, 0, 1), 0))
boolean = body2.newObject("PartDesign::Boolean", "Boolean")
boolean.Type = "Fuse"
boolean.addObjects([body])

doc.recompute()
